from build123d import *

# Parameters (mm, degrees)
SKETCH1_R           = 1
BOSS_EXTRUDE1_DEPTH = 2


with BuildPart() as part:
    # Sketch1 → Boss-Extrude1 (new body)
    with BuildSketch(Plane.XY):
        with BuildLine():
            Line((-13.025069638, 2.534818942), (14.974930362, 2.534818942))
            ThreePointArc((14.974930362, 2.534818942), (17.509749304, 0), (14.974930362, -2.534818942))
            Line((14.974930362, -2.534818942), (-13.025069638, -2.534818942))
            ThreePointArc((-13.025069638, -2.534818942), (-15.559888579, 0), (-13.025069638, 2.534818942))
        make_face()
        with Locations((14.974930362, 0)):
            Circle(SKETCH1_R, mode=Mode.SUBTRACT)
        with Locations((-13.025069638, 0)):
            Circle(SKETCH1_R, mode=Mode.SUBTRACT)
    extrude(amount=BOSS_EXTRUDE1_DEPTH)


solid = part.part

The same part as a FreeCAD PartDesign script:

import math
import FreeCAD as App
import Part
import Sketcher
from FreeCAD import Vector

doc = App.newDocument("Part")
body = doc.addObject("PartDesign::Body", "Body")

# Sketch on XY plane
sketch1 = body.newObject("Sketcher::SketchObject", "Sketch")
sketch1.AttachmentSupport = (doc.getObject("XY_Plane"), [""])
sketch1.MapMode = "FlatFace"
sketch1.addGeometry([
    Part.LineSegment(Vector(14.97493, 2.534819, 0), Vector(-13.02507, 2.534819, 0)),  # 0
    Part.ArcOfCircle(Part.Circle(Vector(-13.02507, 0, 0), Vector(0, 0, 1), 2.534819), math.radians(90), math.radians(270)),  # 1
    Part.LineSegment(Vector(-13.02507, -2.534819, 0), Vector(14.97493, -2.534819, 0)),  # 2
    Part.ArcOfCircle(Part.Circle(Vector(14.97493, 0, 0), Vector(0, 0, 1), 2.534819), math.radians(-90), math.radians(90)),  # 3
    Part.Circle(Vector(14.97493, 0, 0), Vector(0, 0, 1), 1),  # 4
    Part.Circle(Vector(-13.02507, 0, 0), Vector(0, 0, 1), 1),  # 5
], False)
sketch1.addConstraint([
    Sketcher.Constraint("Tangent", 0, 2, 1, 1),
    Sketcher.Constraint("Tangent", 1, 2, 2, 1),
    Sketcher.Constraint("Tangent", 2, 2, 3, 1),
    Sketcher.Constraint("Tangent", 3, 2, 0, 1),
    Sketcher.Constraint("Horizontal", 0),
    Sketcher.Constraint("Horizontal", 2),
    Sketcher.Constraint("Coincident", 4, 3, 3, 3),
    Sketcher.Constraint("Coincident", 5, 3, 1, 3),
    Sketcher.Constraint("Equal", 4, 5),
    Sketcher.Constraint("PointOnObject", 1, 3, -1),
    Sketcher.Constraint("Diameter", 4, 2.0),
    Sketcher.Constraint("DistanceX", 0, 2, 0, 1, 28.0),
    Sketcher.Constraint("Radius", 1, 2.534819),
    Sketcher.Constraint("DistanceX", 1, 3, -1, 1, 13.02507),
])
pad1 = body.newObject("PartDesign::Pad", "Pad")
pad1.Profile = sketch1
pad1.Length = 2

doc.recompute()
